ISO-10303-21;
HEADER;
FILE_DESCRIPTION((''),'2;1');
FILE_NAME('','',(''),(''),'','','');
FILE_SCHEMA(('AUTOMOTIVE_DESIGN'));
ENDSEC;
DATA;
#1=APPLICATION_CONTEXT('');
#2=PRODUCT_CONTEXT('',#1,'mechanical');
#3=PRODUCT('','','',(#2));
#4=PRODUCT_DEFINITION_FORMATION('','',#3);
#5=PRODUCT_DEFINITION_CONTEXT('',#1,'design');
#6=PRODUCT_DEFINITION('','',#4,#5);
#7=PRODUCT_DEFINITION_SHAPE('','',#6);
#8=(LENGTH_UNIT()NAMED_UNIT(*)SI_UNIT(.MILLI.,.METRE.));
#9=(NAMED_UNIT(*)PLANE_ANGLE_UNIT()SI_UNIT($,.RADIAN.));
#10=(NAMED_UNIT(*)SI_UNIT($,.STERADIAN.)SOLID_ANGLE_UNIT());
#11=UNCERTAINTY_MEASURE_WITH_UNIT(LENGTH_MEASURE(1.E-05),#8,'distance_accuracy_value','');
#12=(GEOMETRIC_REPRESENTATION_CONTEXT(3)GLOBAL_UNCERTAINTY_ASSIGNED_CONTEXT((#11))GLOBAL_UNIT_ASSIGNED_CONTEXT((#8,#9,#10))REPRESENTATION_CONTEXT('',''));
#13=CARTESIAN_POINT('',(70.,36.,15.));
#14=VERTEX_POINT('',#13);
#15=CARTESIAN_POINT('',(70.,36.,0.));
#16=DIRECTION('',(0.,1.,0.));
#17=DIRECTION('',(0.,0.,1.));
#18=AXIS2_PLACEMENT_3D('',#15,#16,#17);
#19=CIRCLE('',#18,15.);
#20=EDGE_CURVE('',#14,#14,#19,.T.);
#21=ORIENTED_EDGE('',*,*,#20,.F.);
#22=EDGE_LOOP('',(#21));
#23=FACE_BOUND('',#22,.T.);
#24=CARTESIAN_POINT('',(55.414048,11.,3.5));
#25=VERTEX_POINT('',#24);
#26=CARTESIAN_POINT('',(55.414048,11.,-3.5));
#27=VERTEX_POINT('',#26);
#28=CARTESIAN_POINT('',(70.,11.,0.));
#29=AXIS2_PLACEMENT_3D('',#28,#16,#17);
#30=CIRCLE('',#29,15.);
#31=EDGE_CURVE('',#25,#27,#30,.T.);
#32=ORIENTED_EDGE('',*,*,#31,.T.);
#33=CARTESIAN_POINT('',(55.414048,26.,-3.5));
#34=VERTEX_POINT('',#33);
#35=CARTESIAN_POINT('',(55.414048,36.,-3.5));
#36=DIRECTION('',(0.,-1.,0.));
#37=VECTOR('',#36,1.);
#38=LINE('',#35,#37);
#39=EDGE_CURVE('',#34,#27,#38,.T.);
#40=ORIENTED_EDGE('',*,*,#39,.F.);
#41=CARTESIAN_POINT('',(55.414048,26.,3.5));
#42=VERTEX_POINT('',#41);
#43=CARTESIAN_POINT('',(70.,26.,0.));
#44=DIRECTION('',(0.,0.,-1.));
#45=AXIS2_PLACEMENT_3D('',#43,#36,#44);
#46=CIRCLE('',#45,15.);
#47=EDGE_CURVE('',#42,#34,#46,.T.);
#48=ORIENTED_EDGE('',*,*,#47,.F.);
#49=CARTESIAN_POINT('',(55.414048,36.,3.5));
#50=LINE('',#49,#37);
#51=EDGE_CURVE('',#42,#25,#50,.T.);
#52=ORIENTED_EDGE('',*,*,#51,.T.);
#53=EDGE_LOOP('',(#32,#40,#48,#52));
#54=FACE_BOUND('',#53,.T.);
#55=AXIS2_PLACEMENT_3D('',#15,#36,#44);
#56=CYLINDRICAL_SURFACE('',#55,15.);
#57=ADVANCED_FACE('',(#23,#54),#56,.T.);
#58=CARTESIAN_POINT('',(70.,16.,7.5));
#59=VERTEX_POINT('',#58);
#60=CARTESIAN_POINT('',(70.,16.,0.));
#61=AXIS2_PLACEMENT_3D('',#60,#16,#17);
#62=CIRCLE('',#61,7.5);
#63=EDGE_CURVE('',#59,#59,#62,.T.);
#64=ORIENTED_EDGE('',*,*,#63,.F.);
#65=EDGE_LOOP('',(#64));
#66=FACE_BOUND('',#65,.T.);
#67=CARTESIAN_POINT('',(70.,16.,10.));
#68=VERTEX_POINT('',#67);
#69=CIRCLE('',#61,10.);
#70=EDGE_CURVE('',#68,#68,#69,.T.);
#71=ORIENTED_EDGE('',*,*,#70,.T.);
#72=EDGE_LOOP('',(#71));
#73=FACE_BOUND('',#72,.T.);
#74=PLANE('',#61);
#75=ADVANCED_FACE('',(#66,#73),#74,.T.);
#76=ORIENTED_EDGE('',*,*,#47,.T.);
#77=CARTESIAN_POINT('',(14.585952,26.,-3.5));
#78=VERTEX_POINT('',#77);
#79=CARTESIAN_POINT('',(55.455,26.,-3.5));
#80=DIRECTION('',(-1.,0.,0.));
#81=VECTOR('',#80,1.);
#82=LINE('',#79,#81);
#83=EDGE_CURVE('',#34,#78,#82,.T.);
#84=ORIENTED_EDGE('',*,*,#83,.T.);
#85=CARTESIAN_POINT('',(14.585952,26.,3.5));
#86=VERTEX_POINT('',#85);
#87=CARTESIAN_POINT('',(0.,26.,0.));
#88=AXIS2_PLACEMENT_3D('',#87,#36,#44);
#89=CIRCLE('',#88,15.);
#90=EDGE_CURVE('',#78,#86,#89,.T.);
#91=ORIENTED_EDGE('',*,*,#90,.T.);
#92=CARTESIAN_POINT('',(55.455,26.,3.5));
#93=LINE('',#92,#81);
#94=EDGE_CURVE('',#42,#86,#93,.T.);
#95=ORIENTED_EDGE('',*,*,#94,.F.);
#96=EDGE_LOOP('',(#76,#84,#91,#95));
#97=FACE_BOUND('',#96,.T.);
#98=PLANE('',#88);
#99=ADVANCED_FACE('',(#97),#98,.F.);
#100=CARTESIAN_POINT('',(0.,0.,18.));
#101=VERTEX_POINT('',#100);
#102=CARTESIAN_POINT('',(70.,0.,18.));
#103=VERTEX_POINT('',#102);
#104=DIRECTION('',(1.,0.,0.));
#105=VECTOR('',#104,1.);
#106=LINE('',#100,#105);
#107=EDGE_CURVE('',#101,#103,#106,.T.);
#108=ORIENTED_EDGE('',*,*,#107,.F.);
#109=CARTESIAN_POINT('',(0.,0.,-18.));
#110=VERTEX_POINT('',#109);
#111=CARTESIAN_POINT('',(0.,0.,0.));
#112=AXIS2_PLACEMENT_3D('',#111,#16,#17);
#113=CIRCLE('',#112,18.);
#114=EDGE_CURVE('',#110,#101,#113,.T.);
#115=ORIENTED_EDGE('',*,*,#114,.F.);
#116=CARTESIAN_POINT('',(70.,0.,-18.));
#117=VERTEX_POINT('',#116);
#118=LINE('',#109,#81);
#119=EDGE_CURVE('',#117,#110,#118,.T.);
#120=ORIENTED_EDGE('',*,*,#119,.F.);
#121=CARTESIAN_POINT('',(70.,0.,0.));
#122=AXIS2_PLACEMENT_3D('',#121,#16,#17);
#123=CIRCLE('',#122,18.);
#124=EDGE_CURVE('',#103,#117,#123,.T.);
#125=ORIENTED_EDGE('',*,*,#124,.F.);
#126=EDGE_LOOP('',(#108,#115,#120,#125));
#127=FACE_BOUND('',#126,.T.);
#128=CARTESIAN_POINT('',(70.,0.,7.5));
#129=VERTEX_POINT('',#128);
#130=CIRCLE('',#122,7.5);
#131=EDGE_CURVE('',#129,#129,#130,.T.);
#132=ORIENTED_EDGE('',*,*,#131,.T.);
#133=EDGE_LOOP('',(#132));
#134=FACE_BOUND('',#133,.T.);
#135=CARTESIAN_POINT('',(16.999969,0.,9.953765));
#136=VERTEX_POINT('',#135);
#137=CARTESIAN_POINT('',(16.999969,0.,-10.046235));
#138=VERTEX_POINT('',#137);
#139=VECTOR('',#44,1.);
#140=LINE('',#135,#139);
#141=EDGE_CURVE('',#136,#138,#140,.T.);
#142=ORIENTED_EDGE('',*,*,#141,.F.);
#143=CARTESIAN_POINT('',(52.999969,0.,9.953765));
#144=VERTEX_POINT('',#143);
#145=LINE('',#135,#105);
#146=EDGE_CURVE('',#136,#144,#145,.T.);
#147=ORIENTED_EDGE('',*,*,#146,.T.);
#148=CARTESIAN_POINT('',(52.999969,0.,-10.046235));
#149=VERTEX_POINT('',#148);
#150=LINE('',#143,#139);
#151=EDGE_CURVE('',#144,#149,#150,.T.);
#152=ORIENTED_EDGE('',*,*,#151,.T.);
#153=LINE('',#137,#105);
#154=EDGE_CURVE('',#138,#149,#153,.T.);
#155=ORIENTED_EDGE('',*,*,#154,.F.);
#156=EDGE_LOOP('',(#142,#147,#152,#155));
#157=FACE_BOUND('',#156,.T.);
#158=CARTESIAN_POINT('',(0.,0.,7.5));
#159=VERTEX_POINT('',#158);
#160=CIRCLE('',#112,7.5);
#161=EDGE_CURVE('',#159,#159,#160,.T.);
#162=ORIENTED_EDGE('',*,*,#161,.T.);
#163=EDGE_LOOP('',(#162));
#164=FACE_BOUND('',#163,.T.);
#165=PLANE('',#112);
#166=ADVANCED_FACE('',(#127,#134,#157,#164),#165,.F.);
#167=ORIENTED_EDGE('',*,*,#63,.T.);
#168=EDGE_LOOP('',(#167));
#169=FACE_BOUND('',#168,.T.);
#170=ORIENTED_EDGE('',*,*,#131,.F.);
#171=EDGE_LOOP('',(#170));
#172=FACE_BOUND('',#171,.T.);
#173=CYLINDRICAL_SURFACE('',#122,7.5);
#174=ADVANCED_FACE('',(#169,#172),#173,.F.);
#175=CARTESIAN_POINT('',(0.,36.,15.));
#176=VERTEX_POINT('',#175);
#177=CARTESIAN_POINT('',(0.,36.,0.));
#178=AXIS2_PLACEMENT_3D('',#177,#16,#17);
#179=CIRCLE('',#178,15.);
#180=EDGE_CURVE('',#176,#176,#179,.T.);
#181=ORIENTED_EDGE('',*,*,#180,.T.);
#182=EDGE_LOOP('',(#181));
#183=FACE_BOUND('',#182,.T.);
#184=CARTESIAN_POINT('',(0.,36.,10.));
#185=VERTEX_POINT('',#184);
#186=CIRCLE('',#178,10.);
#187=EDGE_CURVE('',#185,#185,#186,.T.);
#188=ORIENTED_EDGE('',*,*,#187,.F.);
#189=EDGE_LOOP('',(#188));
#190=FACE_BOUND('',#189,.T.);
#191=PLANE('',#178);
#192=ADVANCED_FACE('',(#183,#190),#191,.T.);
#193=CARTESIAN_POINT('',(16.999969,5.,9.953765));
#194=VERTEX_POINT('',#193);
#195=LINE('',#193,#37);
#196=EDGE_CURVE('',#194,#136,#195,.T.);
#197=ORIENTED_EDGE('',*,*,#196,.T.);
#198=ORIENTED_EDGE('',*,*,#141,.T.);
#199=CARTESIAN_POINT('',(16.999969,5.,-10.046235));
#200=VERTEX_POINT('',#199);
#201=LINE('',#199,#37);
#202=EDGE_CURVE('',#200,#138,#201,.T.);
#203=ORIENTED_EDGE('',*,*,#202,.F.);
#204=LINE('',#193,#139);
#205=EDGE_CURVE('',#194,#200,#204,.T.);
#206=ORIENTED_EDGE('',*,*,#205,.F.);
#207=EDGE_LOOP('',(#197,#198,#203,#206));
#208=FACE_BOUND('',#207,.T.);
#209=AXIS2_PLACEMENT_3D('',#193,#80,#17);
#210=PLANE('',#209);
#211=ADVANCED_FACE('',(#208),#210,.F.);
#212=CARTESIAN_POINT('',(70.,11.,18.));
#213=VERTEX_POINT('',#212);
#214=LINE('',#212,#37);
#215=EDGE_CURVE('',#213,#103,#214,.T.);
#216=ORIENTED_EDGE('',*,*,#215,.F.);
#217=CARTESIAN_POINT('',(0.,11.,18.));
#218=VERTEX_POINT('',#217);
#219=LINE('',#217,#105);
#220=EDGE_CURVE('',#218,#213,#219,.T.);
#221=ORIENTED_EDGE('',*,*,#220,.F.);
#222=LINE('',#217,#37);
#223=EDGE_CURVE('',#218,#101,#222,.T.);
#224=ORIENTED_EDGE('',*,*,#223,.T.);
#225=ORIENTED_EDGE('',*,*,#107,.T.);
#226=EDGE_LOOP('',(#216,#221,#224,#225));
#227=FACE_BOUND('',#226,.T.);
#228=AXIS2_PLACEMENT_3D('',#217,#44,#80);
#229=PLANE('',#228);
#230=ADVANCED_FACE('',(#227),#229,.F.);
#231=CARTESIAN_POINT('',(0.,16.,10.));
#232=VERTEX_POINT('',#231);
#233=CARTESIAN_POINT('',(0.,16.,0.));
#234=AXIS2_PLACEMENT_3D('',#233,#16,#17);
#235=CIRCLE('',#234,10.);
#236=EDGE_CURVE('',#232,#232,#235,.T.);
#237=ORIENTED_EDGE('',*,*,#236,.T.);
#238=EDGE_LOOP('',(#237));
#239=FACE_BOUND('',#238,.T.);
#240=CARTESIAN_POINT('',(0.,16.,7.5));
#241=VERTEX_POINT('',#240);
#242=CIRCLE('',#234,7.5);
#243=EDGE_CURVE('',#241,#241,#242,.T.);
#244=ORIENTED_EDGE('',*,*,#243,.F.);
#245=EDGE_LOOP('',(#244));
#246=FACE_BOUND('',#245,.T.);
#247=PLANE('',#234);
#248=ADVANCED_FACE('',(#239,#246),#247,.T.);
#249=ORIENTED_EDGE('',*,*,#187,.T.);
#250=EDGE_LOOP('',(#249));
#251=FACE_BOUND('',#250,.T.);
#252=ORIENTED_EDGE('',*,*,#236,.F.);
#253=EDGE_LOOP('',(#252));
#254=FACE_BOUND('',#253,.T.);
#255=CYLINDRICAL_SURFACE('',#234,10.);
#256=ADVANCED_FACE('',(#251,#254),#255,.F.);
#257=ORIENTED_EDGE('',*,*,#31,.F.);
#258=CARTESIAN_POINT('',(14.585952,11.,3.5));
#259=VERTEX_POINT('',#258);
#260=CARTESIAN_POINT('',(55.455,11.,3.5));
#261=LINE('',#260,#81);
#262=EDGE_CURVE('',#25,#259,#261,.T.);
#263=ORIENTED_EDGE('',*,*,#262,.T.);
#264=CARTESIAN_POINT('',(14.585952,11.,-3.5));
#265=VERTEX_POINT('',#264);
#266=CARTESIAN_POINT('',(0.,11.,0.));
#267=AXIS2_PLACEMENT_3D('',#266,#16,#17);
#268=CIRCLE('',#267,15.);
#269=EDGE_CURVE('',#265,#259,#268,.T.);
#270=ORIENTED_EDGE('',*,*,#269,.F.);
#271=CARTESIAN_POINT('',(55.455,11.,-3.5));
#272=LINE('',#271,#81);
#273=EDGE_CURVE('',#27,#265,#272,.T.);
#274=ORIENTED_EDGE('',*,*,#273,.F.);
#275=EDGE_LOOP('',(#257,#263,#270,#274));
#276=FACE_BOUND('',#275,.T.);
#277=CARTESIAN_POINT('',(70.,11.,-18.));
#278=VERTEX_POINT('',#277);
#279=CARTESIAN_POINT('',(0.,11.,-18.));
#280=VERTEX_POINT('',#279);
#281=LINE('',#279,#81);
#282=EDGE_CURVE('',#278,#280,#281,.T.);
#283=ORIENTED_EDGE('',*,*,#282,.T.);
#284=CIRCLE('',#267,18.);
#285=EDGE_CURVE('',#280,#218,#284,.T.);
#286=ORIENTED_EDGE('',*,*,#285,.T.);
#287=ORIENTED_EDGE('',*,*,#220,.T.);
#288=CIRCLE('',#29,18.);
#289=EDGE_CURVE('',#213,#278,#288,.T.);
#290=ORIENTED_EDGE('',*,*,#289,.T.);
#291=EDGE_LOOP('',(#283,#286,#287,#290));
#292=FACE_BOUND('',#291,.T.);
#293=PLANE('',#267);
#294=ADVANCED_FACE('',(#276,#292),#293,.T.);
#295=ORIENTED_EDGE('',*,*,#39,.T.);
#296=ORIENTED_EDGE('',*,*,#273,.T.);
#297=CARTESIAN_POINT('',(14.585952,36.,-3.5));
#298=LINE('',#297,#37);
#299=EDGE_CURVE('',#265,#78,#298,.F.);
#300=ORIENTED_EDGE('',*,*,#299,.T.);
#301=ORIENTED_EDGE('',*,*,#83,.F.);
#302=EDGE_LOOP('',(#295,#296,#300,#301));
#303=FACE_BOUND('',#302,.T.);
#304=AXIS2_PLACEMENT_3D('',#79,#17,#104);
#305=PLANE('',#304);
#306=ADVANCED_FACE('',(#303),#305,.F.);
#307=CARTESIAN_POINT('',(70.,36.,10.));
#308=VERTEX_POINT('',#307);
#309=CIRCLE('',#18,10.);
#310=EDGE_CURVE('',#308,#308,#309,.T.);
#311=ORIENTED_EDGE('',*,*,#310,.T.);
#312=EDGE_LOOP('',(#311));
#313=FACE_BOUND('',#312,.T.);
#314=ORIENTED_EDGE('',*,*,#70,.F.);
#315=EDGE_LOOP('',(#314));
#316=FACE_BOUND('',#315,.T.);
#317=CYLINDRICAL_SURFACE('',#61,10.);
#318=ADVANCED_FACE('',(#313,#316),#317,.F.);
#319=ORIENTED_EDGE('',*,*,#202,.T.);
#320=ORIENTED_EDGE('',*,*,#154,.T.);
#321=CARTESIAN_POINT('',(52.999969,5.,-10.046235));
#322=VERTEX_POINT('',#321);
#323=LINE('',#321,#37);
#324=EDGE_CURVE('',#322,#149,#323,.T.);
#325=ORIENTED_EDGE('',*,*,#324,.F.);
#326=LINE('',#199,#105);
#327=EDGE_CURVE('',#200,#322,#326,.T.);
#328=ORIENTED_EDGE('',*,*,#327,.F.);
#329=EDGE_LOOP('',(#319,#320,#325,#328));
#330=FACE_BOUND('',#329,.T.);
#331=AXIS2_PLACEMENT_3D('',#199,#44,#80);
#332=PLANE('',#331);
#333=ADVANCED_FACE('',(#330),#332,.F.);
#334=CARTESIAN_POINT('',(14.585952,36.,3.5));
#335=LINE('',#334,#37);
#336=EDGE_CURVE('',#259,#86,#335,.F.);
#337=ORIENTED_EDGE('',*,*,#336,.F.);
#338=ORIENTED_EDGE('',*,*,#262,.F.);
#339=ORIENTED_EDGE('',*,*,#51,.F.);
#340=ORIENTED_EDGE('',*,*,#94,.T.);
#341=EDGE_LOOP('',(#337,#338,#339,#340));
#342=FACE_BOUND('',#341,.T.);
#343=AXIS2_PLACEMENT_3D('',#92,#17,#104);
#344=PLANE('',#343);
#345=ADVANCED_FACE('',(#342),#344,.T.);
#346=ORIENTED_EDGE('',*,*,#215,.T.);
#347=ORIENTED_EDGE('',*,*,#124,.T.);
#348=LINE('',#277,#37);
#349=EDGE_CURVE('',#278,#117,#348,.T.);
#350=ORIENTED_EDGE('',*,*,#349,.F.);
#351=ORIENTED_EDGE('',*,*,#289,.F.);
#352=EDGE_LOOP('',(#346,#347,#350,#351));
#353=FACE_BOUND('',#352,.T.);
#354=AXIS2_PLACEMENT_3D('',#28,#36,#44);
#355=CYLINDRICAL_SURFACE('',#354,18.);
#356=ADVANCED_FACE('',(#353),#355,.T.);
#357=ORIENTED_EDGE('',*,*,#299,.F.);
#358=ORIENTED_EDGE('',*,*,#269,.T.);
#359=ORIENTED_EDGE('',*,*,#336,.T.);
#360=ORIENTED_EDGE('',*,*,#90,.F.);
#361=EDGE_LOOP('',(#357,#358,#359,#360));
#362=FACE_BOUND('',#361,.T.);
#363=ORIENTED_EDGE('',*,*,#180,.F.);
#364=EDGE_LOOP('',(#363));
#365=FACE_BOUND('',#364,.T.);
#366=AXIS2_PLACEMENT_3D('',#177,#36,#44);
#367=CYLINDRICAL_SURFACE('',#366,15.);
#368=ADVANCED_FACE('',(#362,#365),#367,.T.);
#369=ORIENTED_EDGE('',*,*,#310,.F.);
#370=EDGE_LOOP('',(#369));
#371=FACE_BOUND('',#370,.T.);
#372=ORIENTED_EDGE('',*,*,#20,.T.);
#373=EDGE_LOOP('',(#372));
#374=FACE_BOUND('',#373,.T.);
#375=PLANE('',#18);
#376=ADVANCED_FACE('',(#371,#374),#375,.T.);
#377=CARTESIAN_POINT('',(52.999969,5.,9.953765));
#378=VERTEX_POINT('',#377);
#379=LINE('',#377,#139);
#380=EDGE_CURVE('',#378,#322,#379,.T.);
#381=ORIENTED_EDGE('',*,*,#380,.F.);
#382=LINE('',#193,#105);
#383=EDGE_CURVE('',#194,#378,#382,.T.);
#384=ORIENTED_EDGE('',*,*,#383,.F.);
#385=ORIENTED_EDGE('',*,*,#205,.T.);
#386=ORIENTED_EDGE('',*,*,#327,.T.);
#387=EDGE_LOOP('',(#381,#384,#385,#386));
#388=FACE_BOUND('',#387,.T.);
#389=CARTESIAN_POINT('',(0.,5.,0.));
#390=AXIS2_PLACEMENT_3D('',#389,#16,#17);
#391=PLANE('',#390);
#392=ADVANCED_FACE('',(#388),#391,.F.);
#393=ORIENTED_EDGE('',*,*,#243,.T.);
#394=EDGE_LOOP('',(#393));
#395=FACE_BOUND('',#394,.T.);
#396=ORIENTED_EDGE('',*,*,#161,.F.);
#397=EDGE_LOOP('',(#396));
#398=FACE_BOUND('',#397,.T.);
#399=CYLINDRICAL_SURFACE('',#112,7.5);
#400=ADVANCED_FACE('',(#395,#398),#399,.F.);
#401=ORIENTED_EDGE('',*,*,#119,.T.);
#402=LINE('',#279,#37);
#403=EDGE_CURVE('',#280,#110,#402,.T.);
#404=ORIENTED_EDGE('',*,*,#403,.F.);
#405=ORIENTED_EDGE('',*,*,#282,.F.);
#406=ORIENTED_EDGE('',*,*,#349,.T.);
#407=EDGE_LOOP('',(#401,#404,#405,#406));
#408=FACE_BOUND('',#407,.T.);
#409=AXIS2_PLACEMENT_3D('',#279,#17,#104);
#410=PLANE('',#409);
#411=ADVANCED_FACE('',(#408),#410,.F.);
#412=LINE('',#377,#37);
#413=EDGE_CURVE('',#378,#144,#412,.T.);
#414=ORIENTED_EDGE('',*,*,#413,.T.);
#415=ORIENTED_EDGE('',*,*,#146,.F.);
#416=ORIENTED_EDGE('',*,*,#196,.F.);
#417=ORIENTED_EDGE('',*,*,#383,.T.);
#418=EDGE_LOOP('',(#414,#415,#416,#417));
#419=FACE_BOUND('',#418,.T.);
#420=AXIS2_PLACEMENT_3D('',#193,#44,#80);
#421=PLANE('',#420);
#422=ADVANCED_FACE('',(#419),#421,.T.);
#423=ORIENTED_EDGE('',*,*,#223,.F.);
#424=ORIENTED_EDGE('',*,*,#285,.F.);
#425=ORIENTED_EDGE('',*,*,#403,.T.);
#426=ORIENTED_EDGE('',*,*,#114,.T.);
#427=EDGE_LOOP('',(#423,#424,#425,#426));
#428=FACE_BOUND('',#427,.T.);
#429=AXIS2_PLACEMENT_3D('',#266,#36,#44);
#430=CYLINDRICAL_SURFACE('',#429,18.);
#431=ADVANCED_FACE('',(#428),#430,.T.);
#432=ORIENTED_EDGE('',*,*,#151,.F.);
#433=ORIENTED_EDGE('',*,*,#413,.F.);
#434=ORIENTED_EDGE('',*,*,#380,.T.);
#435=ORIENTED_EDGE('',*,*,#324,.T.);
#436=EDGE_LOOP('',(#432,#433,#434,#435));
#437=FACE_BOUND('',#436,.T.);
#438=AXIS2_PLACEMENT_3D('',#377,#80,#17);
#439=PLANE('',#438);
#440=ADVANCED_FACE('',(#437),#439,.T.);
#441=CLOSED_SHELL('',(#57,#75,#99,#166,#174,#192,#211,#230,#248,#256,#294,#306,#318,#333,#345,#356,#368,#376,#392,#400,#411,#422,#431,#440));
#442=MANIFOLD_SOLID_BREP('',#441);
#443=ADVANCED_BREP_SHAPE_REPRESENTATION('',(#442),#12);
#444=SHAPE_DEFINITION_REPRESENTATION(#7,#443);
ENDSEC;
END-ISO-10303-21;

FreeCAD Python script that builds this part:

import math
import FreeCAD as App
import Part
import Sketcher
Q = App.Units.Quantity


def add_polygon(sketch, points):
    """Adds a closed chain of lines whose ends are joined by coincident constraints."""
    first, n = sketch.GeometryCount, len(points)
    for a, b in zip(points, points[1:] + points[:1]):
        sketch.addGeometry(Part.LineSegment(App.Vector(*a, 0), App.Vector(*b, 0)), False)
    for i in range(n):
        sketch.addConstraint(Sketcher.Constraint("Coincident", first + i, 2, first + (i + 1) % n, 1))

doc = App.newDocument("Part")
body = doc.addObject("PartDesign::Body", "Body")

sketch1 = doc.addObject("Sketcher::SketchObject", "Sketch")
body.addObject(sketch1)
sketch1.AttachmentSupport = (doc.XZ_Plane, [""])
sketch1.MapMode = "FlatFace"
sketch1.addGeometry([
    Part.LineSegment(App.Vector(70, -18, 0), App.Vector(0, -18, 0)),
    Part.ArcOfCircle(Part.Circle(App.Vector(0, 0, 0), App.Vector(0, 0, 1), 18), math.radians(90), math.radians(270)),
    Part.LineSegment(App.Vector(0, 18, 0), App.Vector(70, 18, 0)),
    Part.ArcOfCircle(Part.Circle(App.Vector(70, 0, 0), App.Vector(0, 0, 1), 18), math.radians(-90), math.radians(90)),
], False)
sketch1.addConstraint([
    Sketcher.Constraint("Tangent", 0, 2, 1, 2),
    Sketcher.Constraint("Tangent", 1, 1, 2, 1),
    Sketcher.Constraint("Tangent", 2, 2, 3, 2),
    Sketcher.Constraint("Tangent", 3, 1, 0, 1),
    Sketcher.Constraint("Horizontal", 0),
    Sketcher.Constraint("Horizontal", 2),
    Sketcher.Constraint("Coincident", 1, 3, -1, 1),
    Sketcher.Constraint("Radius", 1, Q("18 mm")),
    Sketcher.Constraint("DistanceX", 0, 2, 0, 1, Q("70 mm")),
])
pad1 = doc.addObject("PartDesign::Pad", "Pad")
body.addObject(pad1)
pad1.Profile = sketch1
pad1.Length = 11
pad1.Reversed = True

sketch2 = doc.addObject("Sketcher::SketchObject", "Sketch001")
body.addObject(sketch2)
sketch2.AttachmentSupport = (doc.XZ_Plane, [""])
sketch2.MapMode = "FlatFace"
sketch2.AttachmentOffset = App.Placement(App.Vector(0, 0, -11), App.Rotation())
sketch2.addGeometry([
    Part.Circle(App.Vector(0, 0, 0), App.Vector(0, 0, 1), 15),
    Part.Circle(App.Vector(70, 0, 0), App.Vector(0, 0, 1), 15),
], False)
sketch2.addConstraint([
    Sketcher.Constraint("Coincident", 0, 3, -1, 1),
    Sketcher.Constraint("Equal", 0, 1),
    Sketcher.Constraint("PointOnObject", 1, 3, -1),
    Sketcher.Constraint("Diameter", 0, Q("30 mm")),
    Sketcher.Constraint("DistanceX", -1, 1, 1, 3, Q("70 mm")),
])
pad2 = doc.addObject("PartDesign::Pad", "Pad001")
body.addObject(pad2)
pad2.Profile = sketch2
pad2.Length = 25
pad2.Reversed = True

sketch3 = doc.addObject("Sketcher::SketchObject", "Sketch002")
body.addObject(sketch3)
sketch3.AttachmentSupport = (doc.XZ_Plane, [""])
sketch3.MapMode = "FlatFace"
sketch3.AttachmentOffset = App.Placement(App.Vector(0, 0, -36), App.Rotation())
sketch3.addGeometry([
    Part.Circle(App.Vector(70, 0, 0), App.Vector(0, 0, 1), 10),
    Part.Circle(App.Vector(0, 0, 0), App.Vector(0, 0, 1), 10),
], False)
sketch3.addConstraint([
    Sketcher.Constraint("Coincident", 1, 3, -1, 1),
    Sketcher.Constraint("Equal", 0, 1),
    Sketcher.Constraint("PointOnObject", 0, 3, -1),
    Sketcher.Constraint("Diameter", 0, Q("20 mm")),
    Sketcher.Constraint("DistanceX", -1, 1, 0, 3, Q("70 mm")),
])
pocket1 = doc.addObject("PartDesign::Pocket", "Pocket")
body.addObject(pocket1)
pocket1.Profile = sketch3
pocket1.Length = 20
pocket1.Reversed = True

sketch4 = doc.addObject("Sketcher::SketchObject", "Sketch003")
body.addObject(sketch4)
sketch4.AttachmentSupport = (doc.XZ_Plane, [""])
sketch4.MapMode = "FlatFace"
sketch4.AttachmentOffset = App.Placement(App.Vector(0, 0, -16), App.Rotation())
sketch4.addGeometry(Part.Circle(App.Vector(0, 0, 0), App.Vector(0, 0, 1), 8), False)
sketch4.addConstraint([
    Sketcher.Constraint("Coincident", 0, 3, -1, 1),
    Sketcher.Constraint("Diameter", 0, Q("15 mm")),
])
pocket2 = doc.addObject("PartDesign::Pocket", "Pocket001")
body.addObject(pocket2)
pocket2.Profile = sketch4
pocket2.Type = "ThroughAll"
pocket2.Reversed = True

sketch5 = doc.addObject("Sketcher::SketchObject", "Sketch004")
body.addObject(sketch5)
sketch5.AttachmentSupport = (doc.XZ_Plane, [""])
sketch5.MapMode = "FlatFace"
sketch5.AttachmentOffset = App.Placement(App.Vector(0, 0, -16), App.Rotation())
sketch5.addGeometry(Part.Circle(App.Vector(70, 0, 0), App.Vector(0, 0, 1), 8), False)
sketch5.addConstraint([
    Sketcher.Constraint("PointOnObject", 0, 3, -1),
    Sketcher.Constraint("Diameter", 0, Q("15 mm")),
    Sketcher.Constraint("DistanceX", -1, 1, 0, 3, Q("70 mm")),
])
pocket3 = doc.addObject("PartDesign::Pocket", "Pocket002")
body.addObject(pocket3)
pocket3.Profile = sketch5
pocket3.Type = "ThroughAll"
pocket3.Reversed = True

sketch6 = doc.addObject("Sketcher::SketchObject", "Sketch005")
body.addObject(sketch6)
sketch6.AttachmentSupport = (doc.XZ_Plane, [""])
sketch6.MapMode = "FlatFace"
add_polygon(sketch6, [(17, 10), (17, -10), (53, -10), (53, 10)])
sketch6.addConstraint([
    Sketcher.Constraint("Vertical", 0),
    Sketcher.Constraint("Horizontal", 1),
    Sketcher.Constraint("Vertical", 2),
    Sketcher.Constraint("Horizontal", 3),
    Sketcher.Constraint("DistanceX", 1, 1, 1, 2, Q("36 mm")),
    Sketcher.Constraint("DistanceY", 0, 2, 0, 1, Q("20 mm")),
    Sketcher.Constraint("DistanceX", -1, 1, 0, 2, Q("16.999969 mm")),
    Sketcher.Constraint("DistanceY", 0, 2, -1, 1, Q("10.046235 mm")),
])
pocket4 = doc.addObject("PartDesign::Pocket", "Pocket003")
body.addObject(pocket4)
pocket4.Profile = sketch6
pocket4.Length = 5

sketch7 = doc.addObject("Sketcher::SketchObject", "Sketch006")
body.addObject(sketch7)
sketch7.AttachmentSupport = (doc.XZ_Plane, [""])
sketch7.MapMode = "FlatFace"
sketch7.AttachmentOffset = App.Placement(App.Vector(0, 0, -11), App.Rotation())
add_polygon(sketch7, [(15, -4), (15, 4), (55, 4), (55, -4)])
sketch7.addConstraint([
    Sketcher.Constraint("Vertical", 0),
    Sketcher.Constraint("Horizontal", 1),
    Sketcher.Constraint("Vertical", 2),
    Sketcher.Constraint("Horizontal", 3),
    Sketcher.Constraint("DistanceY", 0, 1, 0, 2, Q("7 mm")),
    Sketcher.Constraint("DistanceX", 1, 1, 1, 2, Q("40.91 mm")),
    Sketcher.Constraint("DistanceY", -1, 1, 0, 2, Q("3.5 mm")),
    Sketcher.Constraint("DistanceX", -1, 1, 0, 2, Q("14.545 mm")),
])
pad3 = doc.addObject("PartDesign::Pad", "Pad002")
body.addObject(pad3)
pad3.Profile = sketch7
pad3.Length = 15
pad3.Reversed = True

doc.recompute()
